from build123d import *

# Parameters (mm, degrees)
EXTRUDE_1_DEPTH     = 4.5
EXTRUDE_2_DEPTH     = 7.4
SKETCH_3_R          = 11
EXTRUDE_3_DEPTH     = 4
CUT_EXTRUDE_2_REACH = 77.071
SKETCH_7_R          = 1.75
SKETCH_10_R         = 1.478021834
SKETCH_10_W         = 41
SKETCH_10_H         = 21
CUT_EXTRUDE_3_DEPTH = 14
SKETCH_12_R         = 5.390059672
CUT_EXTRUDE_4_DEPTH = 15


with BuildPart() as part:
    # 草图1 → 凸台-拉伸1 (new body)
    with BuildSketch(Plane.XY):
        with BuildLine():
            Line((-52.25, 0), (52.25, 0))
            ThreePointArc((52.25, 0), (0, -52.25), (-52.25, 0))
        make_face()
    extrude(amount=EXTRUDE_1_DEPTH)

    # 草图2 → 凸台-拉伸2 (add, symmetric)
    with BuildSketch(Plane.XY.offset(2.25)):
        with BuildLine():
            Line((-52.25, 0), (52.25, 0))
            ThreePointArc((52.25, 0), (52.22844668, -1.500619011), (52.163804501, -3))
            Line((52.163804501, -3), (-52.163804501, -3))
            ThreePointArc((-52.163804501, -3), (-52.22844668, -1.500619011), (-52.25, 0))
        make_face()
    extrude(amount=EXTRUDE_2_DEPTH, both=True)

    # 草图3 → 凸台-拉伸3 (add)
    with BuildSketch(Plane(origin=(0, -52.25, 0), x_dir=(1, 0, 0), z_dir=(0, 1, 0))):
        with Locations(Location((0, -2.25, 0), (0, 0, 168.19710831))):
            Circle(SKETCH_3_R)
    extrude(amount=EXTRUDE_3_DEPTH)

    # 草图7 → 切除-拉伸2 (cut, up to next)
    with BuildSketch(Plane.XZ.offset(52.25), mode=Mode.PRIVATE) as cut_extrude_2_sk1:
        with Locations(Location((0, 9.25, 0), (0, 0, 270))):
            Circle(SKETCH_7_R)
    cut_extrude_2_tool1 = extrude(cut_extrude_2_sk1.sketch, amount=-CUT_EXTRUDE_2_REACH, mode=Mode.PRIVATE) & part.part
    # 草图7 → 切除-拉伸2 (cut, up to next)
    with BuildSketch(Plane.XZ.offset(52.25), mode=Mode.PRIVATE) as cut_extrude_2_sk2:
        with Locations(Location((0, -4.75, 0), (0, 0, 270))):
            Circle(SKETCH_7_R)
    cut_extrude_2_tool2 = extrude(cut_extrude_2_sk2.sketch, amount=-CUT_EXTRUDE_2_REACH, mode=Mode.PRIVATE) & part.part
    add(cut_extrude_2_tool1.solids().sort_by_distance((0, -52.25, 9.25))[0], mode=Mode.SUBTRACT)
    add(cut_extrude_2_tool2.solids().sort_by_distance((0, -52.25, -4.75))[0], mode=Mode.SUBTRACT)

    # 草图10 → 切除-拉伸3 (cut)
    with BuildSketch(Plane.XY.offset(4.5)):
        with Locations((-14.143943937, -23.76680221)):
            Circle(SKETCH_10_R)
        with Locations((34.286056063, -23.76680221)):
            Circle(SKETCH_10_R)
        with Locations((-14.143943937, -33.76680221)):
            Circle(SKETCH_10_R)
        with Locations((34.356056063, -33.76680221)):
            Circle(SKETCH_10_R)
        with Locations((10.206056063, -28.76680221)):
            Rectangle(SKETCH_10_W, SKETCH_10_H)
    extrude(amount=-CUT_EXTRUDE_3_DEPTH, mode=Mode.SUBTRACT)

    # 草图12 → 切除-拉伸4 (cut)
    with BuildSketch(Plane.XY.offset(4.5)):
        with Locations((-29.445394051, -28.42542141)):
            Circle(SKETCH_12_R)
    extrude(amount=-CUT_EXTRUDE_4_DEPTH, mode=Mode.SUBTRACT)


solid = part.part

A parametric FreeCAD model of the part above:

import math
import FreeCAD as App
import Part
import Sketcher

V = App.Vector
Q = App.Units.Quantity


def add_polygon(sketch, points):
    """Adds a closed chain of lines whose ends are joined by coincident constraints."""
    first, n = sketch.GeometryCount, len(points)
    for a, b in zip(points, points[1:] + points[:1]):
        sketch.addGeometry(Part.LineSegment(App.Vector(*a, 0), App.Vector(*b, 0)), False)
    for i in range(n):
        sketch.addConstraint(Sketcher.Constraint("Coincident", first + i, 2, first + (i + 1) % n, 1))

doc = App.newDocument("Part")
body = doc.addObject("PartDesign::Body", "Body")

# Sketch on XY plane
sketch1 = body.newObject("Sketcher::SketchObject", "Sketch")
sketch1.AttachmentSupport = (doc.getObject("XY_Plane"), [""])
sketch1.MapMode = "FlatFace"
sketch1.addGeometry(Part.LineSegment(V(52, 0, 0), V(-52, 0, 0)), False)
sketch1.addGeometry(Part.ArcOfCircle(Part.Circle(V(0, 0, 0), V(0, 0, 1), 52), math.radians(180), math.radians(360)), False)
sketch1.addConstraint(Sketcher.Constraint("Coincident", 0, 1, 1, 2))
sketch1.addConstraint(Sketcher.Constraint("Coincident", 1, 1, 0, 2))
sketch1.addConstraint(Sketcher.Constraint("Horizontal", 0))
sketch1.addConstraint(Sketcher.Constraint("Coincident", 1, 3, -1, 1))
sketch1.addConstraint(Sketcher.Constraint("PointOnObject", 0, 1, -1))
sketch1.addConstraint(Sketcher.Constraint("Radius", 1, Q("52.25 mm")))
pad1 = body.newObject("PartDesign::Pad", "Pad")
pad1.Profile = sketch1
pad1.Length = 4.5

# Sketch on XY plane
sketch2 = body.newObject("Sketcher::SketchObject", "Sketch001")
sketch2.AttachmentSupport = (doc.getObject("XY_Plane"), [""])
sketch2.MapMode = "FlatFace"
sketch2.AttachmentOffset = App.Placement(V(0, 0, 2.25), App.Rotation())
sketch2.addGeometry(Part.LineSegment(V(52.2, 0, 0), V(-52.2, 0, 0)), False)
sketch2.addGeometry(Part.ArcOfCircle(Part.Circle(V(0, 0, 0), V(0, 0, 1), 52.2), math.radians(180), math.radians(183.29)), False)
sketch2.addGeometry(Part.LineSegment(V(-52.2, -3, 0), V(52.2, -3, 0)), False)
sketch2.addGeometry(Part.ArcOfCircle(Part.Circle(V(0, 0, 0), V(0, 0, 1), 52.2), math.radians(-3.29), math.radians(0)), False)
sketch2.addConstraint(Sketcher.Constraint("Coincident", 0, 2, 1, 1))
sketch2.addConstraint(Sketcher.Constraint("Coincident", 1, 2, 2, 1))
sketch2.addConstraint(Sketcher.Constraint("Coincident", 2, 2, 3, 1))
sketch2.addConstraint(Sketcher.Constraint("Coincident", 3, 2, 0, 1))
sketch2.addConstraint(Sketcher.Constraint("Horizontal", 0))
sketch2.addConstraint(Sketcher.Constraint("Horizontal", 2))
sketch2.addConstraint(Sketcher.Constraint("Coincident", 1, 3, -1, 1))
sketch2.addConstraint(Sketcher.Constraint("Coincident", 3, 3, -1, 1))
sketch2.addConstraint(Sketcher.Constraint("Equal", 1, 3))
sketch2.addConstraint(Sketcher.Constraint("PointOnObject", 0, 2, -1))
sketch2.addConstraint(Sketcher.Constraint("Radius", 1, Q("52.25 mm")))
sketch2.addConstraint(Sketcher.Constraint("DistanceY", 1, 2, -1, 1, Q("3 mm")))
pad2 = body.newObject("PartDesign::Pad", "Pad001")
pad2.Profile = sketch2
pad2.Length = 14.8
pad2.Midplane = True

# Sketch on XZ plane
sketch3 = body.newObject("Sketcher::SketchObject", "Sketch002")
sketch3.AttachmentSupport = (doc.getObject("XZ_Plane"), [""])
sketch3.MapMode = "FlatFace"
sketch3.AttachmentOffset = App.Placement(V(0, 0, 52.25), App.Rotation())
sketch3.addGeometry(Part.Circle(V(0, 2, 0), V(0, 0, 1), 11), False)
sketch3.addConstraint(Sketcher.Constraint("PointOnObject", 0, 3, -2))
sketch3.addConstraint(Sketcher.Constraint("Diameter", 0, Q("22 mm")))
sketch3.addConstraint(Sketcher.Constraint("DistanceY", -1, 1, 0, 3, Q("2.25 mm")))
pad3 = body.newObject("PartDesign::Pad", "Pad002")
pad3.Profile = sketch3
pad3.Length = 4
pad3.Reversed = True

# Sketch on XZ plane
sketch4 = body.newObject("Sketcher::SketchObject", "Sketch003")
sketch4.AttachmentSupport = (doc.getObject("XZ_Plane"), [""])
sketch4.MapMode = "FlatFace"
sketch4.AttachmentOffset = App.Placement(V(0, 0, 52.25), App.Rotation())
sketch4.addGeometry(Part.Circle(V(0, 9.2, 0), V(0, 0, 1), 1.8), False)
sketch4.addConstraint(Sketcher.Constraint("PointOnObject", 0, 3, -2))
sketch4.addConstraint(Sketcher.Constraint("Diameter", 0, Q("3.5 mm")))
sketch4.addConstraint(Sketcher.Constraint("DistanceY", -1, 1, 0, 3, Q("9.25 mm")))
pocket1 = body.newObject("PartDesign::Pocket", "Pocket")
pocket1.Profile = sketch4
pocket1.Type = "UpToFirst"

# Sketch on XZ plane
sketch5 = body.newObject("Sketcher::SketchObject", "Sketch004")
sketch5.AttachmentSupport = (doc.getObject("XZ_Plane"), [""])
sketch5.MapMode = "FlatFace"
sketch5.AttachmentOffset = App.Placement(V(0, 0, 52.25), App.Rotation())
sketch5.addGeometry(Part.Circle(V(0, -4.8, 0), V(0, 0, 1), 1.8), False)
sketch5.addConstraint(Sketcher.Constraint("PointOnObject", 0, 3, -2))
sketch5.addConstraint(Sketcher.Constraint("Diameter", 0, Q("3.5 mm")))
sketch5.addConstraint(Sketcher.Constraint("DistanceY", 0, 3, -1, 1, Q("4.75 mm")))
pocket2 = body.newObject("PartDesign::Pocket", "Pocket001")
pocket2.Profile = sketch5
pocket2.Type = "UpToFirst"

# Sketch on XY plane
sketch6 = body.newObject("Sketcher::SketchObject", "Sketch005")
sketch6.AttachmentSupport = (doc.getObject("XY_Plane"), [""])
sketch6.MapMode = "FlatFace"
sketch6.AttachmentOffset = App.Placement(V(0, 0, 4.5), App.Rotation())
sketch6.addGeometry(Part.Circle(V(-14.1, -23.8, 0), V(0, 0, 1), 1.5), False)  # 0
sketch6.addGeometry(Part.Circle(V(34.3, -23.8, 0), V(0, 0, 1), 1.5), False)  # 1
sketch6.addGeometry(Part.Circle(V(-14.1, -33.8, 0), V(0, 0, 1), 1.5), False)  # 2
sketch6.addGeometry(Part.Circle(V(34.4, -33.8, 0), V(0, 0, 1), 1.5), False)  # 3
add_polygon(sketch6, [(-10.3, -18.3), (-10.3, -39.3), (30.7, -39.3), (30.7, -18.3)])  # lines 4-7
sketch6.addConstraint(Sketcher.Constraint("Vertical", 4))
sketch6.addConstraint(Sketcher.Constraint("Horizontal", 5))
sketch6.addConstraint(Sketcher.Constraint("Vertical", 6))
sketch6.addConstraint(Sketcher.Constraint("Horizontal", 7))
sketch6.addConstraint(Sketcher.Constraint("Equal", 0, 1))
sketch6.addConstraint(Sketcher.Constraint("Equal", 1, 2))
sketch6.addConstraint(Sketcher.Constraint("Equal", 2, 3))
sketch6.addConstraint(Sketcher.Constraint("Horizontal", 0, 3, 1, 3))
sketch6.addConstraint(Sketcher.Constraint("Horizontal", 2, 3, 3, 3))
sketch6.addConstraint(Sketcher.Constraint("Vertical", 0, 3, 2, 3))
sketch6.addConstraint(Sketcher.Constraint("DistanceX", 5, 1, 5, 2, Q("41 mm")))
sketch6.addConstraint(Sketcher.Constraint("DistanceY", 4, 2, 4, 1, Q("21 mm")))
sketch6.addConstraint(Sketcher.Constraint("DistanceY", 2, 3, 0, 3, Q("10 mm")))
sketch6.addConstraint(Sketcher.Constraint("DistanceX", 2, 3, 3, 3, Q("48.5 mm")))
sketch6.addConstraint(Sketcher.Constraint("DistanceY", 4, 2, 2, 3, Q("5.5 mm")))
sketch6.addConstraint(Sketcher.Constraint("DistanceX", 0, 3, 1, 3, Q("48.43 mm")))
sketch6.addConstraint(Sketcher.Constraint("DistanceX", 2, 3, 4, 2, Q("3.85 mm")))
sketch6.addConstraint(Sketcher.Constraint("Diameter", 0, Q("2.956044 mm")))
sketch6.addConstraint(Sketcher.Constraint("DistanceX", 0, 3, -1, 1, Q("14.143944 mm")))
sketch6.addConstraint(Sketcher.Constraint("DistanceY", 0, 3, -1, 1, Q("23.766802 mm")))
pocket3 = body.newObject("PartDesign::Pocket", "Pocket002")
pocket3.Profile = sketch6
pocket3.Length = 14

# Sketch on XY plane
sketch7 = body.newObject("Sketcher::SketchObject", "Sketch006")
sketch7.AttachmentSupport = (doc.getObject("XY_Plane"), [""])
sketch7.MapMode = "FlatFace"
sketch7.AttachmentOffset = App.Placement(V(0, 0, 4.5), App.Rotation())
sketch7.addGeometry(Part.Circle(V(-29, -28, 0), V(0, 0, 1), 5), False)
sketch7.addConstraint(Sketcher.Constraint("Diameter", 0, Q("10.780119 mm")))
sketch7.addConstraint(Sketcher.Constraint("DistanceY", 0, 3, -1, 1, Q("28.425421 mm")))
sketch7.addConstraint(Sketcher.Constraint("DistanceX", 0, 3, -1, 1, Q("29.445394 mm")))
pocket4 = body.newObject("PartDesign::Pocket", "Pocket003")
pocket4.Profile = sketch7
pocket4.Length = 15

doc.recompute()
